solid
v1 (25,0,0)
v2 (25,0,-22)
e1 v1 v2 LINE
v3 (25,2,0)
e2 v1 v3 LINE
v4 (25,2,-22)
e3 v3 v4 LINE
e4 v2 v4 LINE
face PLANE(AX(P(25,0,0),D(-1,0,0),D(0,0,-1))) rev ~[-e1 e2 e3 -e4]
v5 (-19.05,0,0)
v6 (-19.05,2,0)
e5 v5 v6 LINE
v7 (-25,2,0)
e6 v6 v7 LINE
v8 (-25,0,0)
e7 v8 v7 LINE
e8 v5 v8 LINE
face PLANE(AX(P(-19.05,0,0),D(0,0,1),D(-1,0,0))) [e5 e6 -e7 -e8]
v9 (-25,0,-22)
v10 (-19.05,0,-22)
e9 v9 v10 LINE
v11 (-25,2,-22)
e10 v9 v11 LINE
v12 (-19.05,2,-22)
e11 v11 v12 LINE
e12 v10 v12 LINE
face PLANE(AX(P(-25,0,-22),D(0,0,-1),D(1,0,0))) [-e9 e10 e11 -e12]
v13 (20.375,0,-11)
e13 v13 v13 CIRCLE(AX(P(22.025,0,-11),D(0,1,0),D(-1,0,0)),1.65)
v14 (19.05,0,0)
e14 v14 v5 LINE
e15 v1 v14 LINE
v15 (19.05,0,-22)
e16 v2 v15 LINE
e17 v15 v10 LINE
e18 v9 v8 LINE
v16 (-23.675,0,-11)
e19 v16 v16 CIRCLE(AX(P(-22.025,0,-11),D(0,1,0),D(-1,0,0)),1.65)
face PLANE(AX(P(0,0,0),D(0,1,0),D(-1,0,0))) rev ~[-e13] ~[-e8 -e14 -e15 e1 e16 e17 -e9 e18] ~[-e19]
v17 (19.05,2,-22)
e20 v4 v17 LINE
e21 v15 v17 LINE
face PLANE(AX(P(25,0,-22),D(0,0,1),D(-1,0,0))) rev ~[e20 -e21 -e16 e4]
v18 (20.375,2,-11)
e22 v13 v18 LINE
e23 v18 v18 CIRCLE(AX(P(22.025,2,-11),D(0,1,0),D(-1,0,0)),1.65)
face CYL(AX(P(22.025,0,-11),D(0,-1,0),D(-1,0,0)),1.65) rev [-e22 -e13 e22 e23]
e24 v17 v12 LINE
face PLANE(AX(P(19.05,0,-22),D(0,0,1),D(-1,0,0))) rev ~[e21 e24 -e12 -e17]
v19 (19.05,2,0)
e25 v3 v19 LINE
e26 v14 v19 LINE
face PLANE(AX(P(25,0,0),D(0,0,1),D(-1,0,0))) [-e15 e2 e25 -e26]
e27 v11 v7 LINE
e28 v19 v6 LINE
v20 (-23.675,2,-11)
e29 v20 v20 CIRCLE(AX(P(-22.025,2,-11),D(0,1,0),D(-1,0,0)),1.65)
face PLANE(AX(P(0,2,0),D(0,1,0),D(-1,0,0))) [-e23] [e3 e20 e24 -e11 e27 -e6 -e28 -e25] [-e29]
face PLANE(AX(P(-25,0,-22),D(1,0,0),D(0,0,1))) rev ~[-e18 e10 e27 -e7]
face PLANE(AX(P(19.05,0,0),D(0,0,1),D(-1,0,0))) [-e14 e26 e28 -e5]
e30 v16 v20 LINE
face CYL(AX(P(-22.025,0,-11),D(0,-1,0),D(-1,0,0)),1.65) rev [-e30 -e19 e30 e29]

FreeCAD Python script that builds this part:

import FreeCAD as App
import Part
import Sketcher
from FreeCAD import Vector
Q = App.Units.Quantity

doc = App.newDocument("Part")
params = doc.addObject("Spreadsheet::Sheet", "Params")
for row, (alias, value) in enumerate([
    ("sketch1_diameter", "3.3 mm"),
    ("sketch1_width", "50 mm"),
    ("pad1_length", "2 mm"),
], start=1):
    params.set(f"A{row}", alias)
    params.set(f"B{row}", "=" + value)
    params.setAlias(f"B{row}", alias)

body = doc.addObject("PartDesign::Body", "Body")

# Sketch on XZ plane
sketch1 = body.newObject("Sketcher::SketchObject", "Sketch")
sketch1.AttachmentSupport = (doc.getObject("XZ_Plane"), [""])
sketch1.MapMode = "FlatFace"
sketch1.addGeometry([
    Part.LineSegment(Vector(25, -22, 0), Vector(-25, -22, 0)),  # 0
    Part.LineSegment(Vector(-25, -22, 0), Vector(-25, 0, 0)),  # 1
    Part.LineSegment(Vector(-25, 0, 0), Vector(25, 0, 0)),  # 2
    Part.LineSegment(Vector(25, 0, 0), Vector(25, -22, 0)),  # 3
    Part.Circle(Vector(22, -11, 0), Vector(0, 0, 1), 1.6),  # 4
    Part.Circle(Vector(-22, -11, 0), Vector(0, 0, 1), 1.6),  # 5
], False)
sketch1.addConstraint([
    Sketcher.Constraint("Coincident", 0, 2, 1, 1),
    Sketcher.Constraint("Coincident", 1, 2, 2, 1),
    Sketcher.Constraint("Coincident", 2, 2, 3, 1),
    Sketcher.Constraint("Coincident", 3, 2, 0, 1),
    Sketcher.Constraint("Horizontal", 0),
    Sketcher.Constraint("Vertical", 1),
    Sketcher.Constraint("Horizontal", 2),
    Sketcher.Constraint("Vertical", 3),
    Sketcher.Constraint("Equal", 4, 5),
    Sketcher.Constraint("Symmetric", 1, 2, 2, 2, -1, 1),
    Sketcher.Constraint("Symmetric", 4, 3, 5, 3, -2),
    Sketcher.Constraint("Diameter", 4, Q("3.3 mm")),
    Sketcher.Constraint("DistanceY", 4, 3, -1, 1, Q("11 mm")),
    Sketcher.Constraint("DistanceY", 0, 2, 5, 3, Q("11 mm")),
    Sketcher.Constraint("DistanceX", 0, 2, 0, 1, Q("50 mm")),
    Sketcher.Constraint("DistanceX", 0, 2, 5, 3, Q("2.975 mm")),
])
sketch1.setExpression("Constraints[11]", "Params.sketch1_diameter")
sketch1.setExpression("Constraints[14]", "Params.sketch1_width")
pad1 = body.newObject("PartDesign::Pad", "Pad")
pad1.Profile = sketch1
pad1.setExpression("Length", "Params.pad1_length")
pad1.Reversed = True

doc.recompute()
